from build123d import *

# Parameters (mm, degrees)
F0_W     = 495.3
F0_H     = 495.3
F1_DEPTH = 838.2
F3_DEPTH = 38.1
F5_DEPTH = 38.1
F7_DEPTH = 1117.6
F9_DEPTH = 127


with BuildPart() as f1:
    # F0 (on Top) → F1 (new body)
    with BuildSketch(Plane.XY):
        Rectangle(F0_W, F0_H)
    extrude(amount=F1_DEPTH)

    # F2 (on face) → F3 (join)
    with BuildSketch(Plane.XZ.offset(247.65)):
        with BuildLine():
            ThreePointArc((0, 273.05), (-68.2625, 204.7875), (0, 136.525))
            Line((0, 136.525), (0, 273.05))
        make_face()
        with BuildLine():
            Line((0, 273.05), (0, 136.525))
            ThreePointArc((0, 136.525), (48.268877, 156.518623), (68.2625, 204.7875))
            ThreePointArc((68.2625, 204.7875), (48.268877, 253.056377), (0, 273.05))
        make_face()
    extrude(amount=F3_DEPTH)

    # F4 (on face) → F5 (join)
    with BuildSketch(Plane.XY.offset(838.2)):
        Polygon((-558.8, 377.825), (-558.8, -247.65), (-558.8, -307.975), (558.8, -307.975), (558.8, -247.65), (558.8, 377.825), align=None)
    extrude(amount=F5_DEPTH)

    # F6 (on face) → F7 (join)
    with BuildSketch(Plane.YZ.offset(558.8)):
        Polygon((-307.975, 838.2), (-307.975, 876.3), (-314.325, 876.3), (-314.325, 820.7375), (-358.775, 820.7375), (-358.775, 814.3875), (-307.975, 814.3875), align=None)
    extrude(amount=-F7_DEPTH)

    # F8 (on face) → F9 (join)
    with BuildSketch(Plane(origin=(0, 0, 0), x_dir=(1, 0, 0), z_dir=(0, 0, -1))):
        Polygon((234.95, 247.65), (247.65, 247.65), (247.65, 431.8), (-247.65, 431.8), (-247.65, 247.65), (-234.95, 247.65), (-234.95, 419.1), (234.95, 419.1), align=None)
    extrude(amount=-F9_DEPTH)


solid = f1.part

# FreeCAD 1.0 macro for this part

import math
import FreeCAD as App
import Part
import Sketcher

V = App.Vector
Q = App.Units.Quantity


def add_polygon(sketch, points):
    """Adds a closed chain of lines whose ends are joined by coincident constraints."""
    first, n = sketch.GeometryCount, len(points)
    for a, b in zip(points, points[1:] + points[:1]):
        sketch.addGeometry(Part.LineSegment(App.Vector(*a, 0), App.Vector(*b, 0)), False)
    for i in range(n):
        sketch.addConstraint(Sketcher.Constraint("Coincident", first + i, 2, first + (i + 1) % n, 1))

doc = App.newDocument("Part")
body = doc.addObject("PartDesign::Body", "Body")

# Sketch on XY plane
sketch1 = body.newObject("Sketcher::SketchObject", "Sketch")
sketch1.AttachmentSupport = (doc.getObject("XY_Plane"), [""])
sketch1.MapMode = "FlatFace"
add_polygon(sketch1, [(-247.65, 247.65), (-247.65, -247.65), (247.65, -247.65), (247.65, 247.65)])  # lines 0-3
sketch1.addConstraint([
    Sketcher.Constraint("Vertical", 0),
    Sketcher.Constraint("Horizontal", 1),
    Sketcher.Constraint("Vertical", 2),
    Sketcher.Constraint("Horizontal", 3),
    Sketcher.Constraint("Symmetric", 0, 2, 2, 2, -1, 1),
    Sketcher.Constraint("Equal", 3, 0),
    Sketcher.Constraint("DistanceX", 1, 1, 1, 2, Q("19.5 in")),
])
pad1 = body.newObject("PartDesign::Pad", "Pad")
pad1.Profile = sketch1
pad1.Length = Q("33 in")

# Sketch on XZ plane
sketch2 = body.newObject("Sketcher::SketchObject", "Sketch001")
sketch2.AttachmentSupport = (doc.getObject("XZ_Plane"), [""])
sketch2.MapMode = "FlatFace"
sketch2.AttachmentOffset = App.Placement(V(0, 0, 9.75 * 25.4), App.Rotation())
sketch2.addGeometry([
    Part.ArcOfCircle(Part.Circle(V(0, 204.7875, 0), V(0, 0, 1), 68.2625), math.radians(90), math.radians(270)),
    Part.ArcOfCircle(Part.Circle(V(0.000001, 204.787499, 0), V(0, 0, 1), 68.262499), math.radians(-90.000001), math.radians(0.000001)),
    Part.ArcOfCircle(Part.Circle(V(0.000001, 204.787501, 0), V(0, 0, 1), 68.262499), math.radians(-0.000001), math.radians(90.000001)),
], False)
sketch2.addConstraint([
    Sketcher.Constraint("Tangent", 0, 2, 1, 1),
    Sketcher.Constraint("Tangent", 1, 2, 2, 1),
    Sketcher.Constraint("Tangent", 2, 2, 0, 1),
    Sketcher.Constraint("PointOnObject", 0, 3, -2),
    Sketcher.Constraint("PointOnObject", 0, 2, -2),
    Sketcher.Constraint("PointOnObject", 2, 2, -2),
    Sketcher.Constraint("Horizontal", 2, 3, 1, 2),
    Sketcher.Constraint("Radius", 0, Q("2.6875 in")),
    Sketcher.Constraint("DistanceY", -1, 1, 2, 2, Q("10.75 in")),
])
pad2 = body.newObject("PartDesign::Pad", "Pad001")
pad2.Profile = sketch2
pad2.Length = Q("1.5 in")

# Sketch on XY plane
sketch3 = body.newObject("Sketcher::SketchObject", "Sketch002")
sketch3.AttachmentSupport = (doc.getObject("XY_Plane"), [""])
sketch3.MapMode = "FlatFace"
sketch3.AttachmentOffset = App.Placement(V(0, 0, 33 * 25.4), App.Rotation())
add_polygon(sketch3, [(-558.8, 377.825), (-558.8, -307.975), (558.8, -307.975), (558.8, 377.825)])  # lines 0-3
sketch3.addConstraint([
    Sketcher.Constraint("Vertical", 0),
    Sketcher.Constraint("Horizontal", 1),
    Sketcher.Constraint("Vertical", 2),
    Sketcher.Constraint("Horizontal", 3),
    Sketcher.Constraint("DistanceX", 1, 1, 1, 2, Q("44 in")),
    Sketcher.Constraint("DistanceY", 0, 2, 0, 1, Q("27 in")),
    Sketcher.Constraint("DistanceX", 0, 2, -1, 1, Q("22 in")),
    Sketcher.Constraint("DistanceY", 0, 2, -1, 1, Q("12.125 in")),
])
pad3 = body.newObject("PartDesign::Pad", "Pad002")
pad3.Profile = sketch3
pad3.Length = Q("1.5 in")

# Sketch on YZ plane
sketch4 = body.newObject("Sketcher::SketchObject", "Sketch003")
sketch4.AttachmentSupport = (doc.getObject("YZ_Plane"), [""])
sketch4.MapMode = "FlatFace"
sketch4.AttachmentOffset = App.Placement(V(0, 0, 22 * 25.4), App.Rotation())
add_polygon(sketch4, [(-307.975, 876.3), (-314.325, 876.3), (-314.325, 820.7375), (-358.775, 820.7375), (-358.775, 814.3875), (-307.975, 814.3875)])  # lines 0-5
sketch4.addConstraint([
    Sketcher.Constraint("Horizontal", 0),
    Sketcher.Constraint("Vertical", 1),
    Sketcher.Constraint("Horizontal", 2),
    Sketcher.Constraint("Vertical", 3),
    Sketcher.Constraint("Horizontal", 4),
    Sketcher.Constraint("Vertical", 5),
    Sketcher.Constraint("Equal", 0, 3),
    Sketcher.Constraint("DistanceX", 4, 1, 4, 2, Q("2 in")),
    Sketcher.Constraint("DistanceX", 0, 2, 0, 1, Q("0.25 in")),
    Sketcher.Constraint("DistanceY", -1, 1, 0, 2, Q("34.5 in")),
    Sketcher.Constraint("DistanceY", 1, 2, 1, 1, Q("2.1875 in")),
    Sketcher.Constraint("DistanceX", 0, 2, -1, 1, Q("12.375 in")),
])
pad4 = body.newObject("PartDesign::Pad", "Pad003")
pad4.Profile = sketch4
pad4.Length = Q("44 in")
pad4.Reversed = True

# Sketch on XY plane
sketch5 = body.newObject("Sketcher::SketchObject", "Sketch004")
sketch5.AttachmentSupport = (doc.getObject("XY_Plane"), [""])
sketch5.MapMode = "FlatFace"
add_polygon(sketch5, [(234.95, -247.65), (247.65, -247.65), (247.65, -431.8), (-247.65, -431.8), (-247.65, -247.65), (-234.95, -247.65), (-234.95, -419.1), (234.95, -419.1)])  # lines 0-7
sketch5.addConstraint([
    Sketcher.Constraint("Horizontal", 0),
    Sketcher.Constraint("Vertical", 1),
    Sketcher.Constraint("Horizontal", 2),
    Sketcher.Constraint("Vertical", 3),
    Sketcher.Constraint("Horizontal", 4),
    Sketcher.Constraint("Vertical", 5),
    Sketcher.Constraint("Horizontal", 6),
    Sketcher.Constraint("Vertical", 7),
    Sketcher.Constraint("Symmetric", 0, 2, 3, 2, -2),
    Sketcher.Constraint("Equal", 0, 4),
    Sketcher.Constraint("DistanceX", 0, 1, 0, 2, Q("0.5 in")),
    Sketcher.Constraint("DistanceX", 2, 2, 2, 1, Q("19.5 in")),
    Sketcher.Constraint("DistanceY", 1, 2, -1, 1, Q("17 in")),
    Sketcher.Constraint("DistanceY", 1, 2, 1, 1, Q("7.25 in")),
    Sketcher.Constraint("DistanceY", 5, 2, 5, 1, Q("6.75 in")),
])
pad5 = body.newObject("PartDesign::Pad", "Pad004")
pad5.Profile = sketch5
pad5.Length = Q("5 in")

doc.recompute()
